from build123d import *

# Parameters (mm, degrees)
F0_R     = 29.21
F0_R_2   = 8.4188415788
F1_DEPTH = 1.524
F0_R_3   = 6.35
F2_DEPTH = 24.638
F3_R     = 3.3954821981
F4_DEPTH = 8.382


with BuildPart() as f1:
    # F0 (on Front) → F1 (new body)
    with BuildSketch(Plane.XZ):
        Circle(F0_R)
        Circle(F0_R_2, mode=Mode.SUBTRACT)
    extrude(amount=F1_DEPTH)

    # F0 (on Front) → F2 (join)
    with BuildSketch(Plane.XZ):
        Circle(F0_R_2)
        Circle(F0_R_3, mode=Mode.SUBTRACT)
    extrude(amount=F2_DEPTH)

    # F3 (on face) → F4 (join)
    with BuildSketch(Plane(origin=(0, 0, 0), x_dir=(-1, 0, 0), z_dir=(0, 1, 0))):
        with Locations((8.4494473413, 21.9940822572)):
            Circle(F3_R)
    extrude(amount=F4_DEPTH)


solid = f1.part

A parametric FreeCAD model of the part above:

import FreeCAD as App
import Part
import Sketcher
Q = App.Units.Quantity

doc = App.newDocument("Part")
body = doc.addObject("PartDesign::Body", "Body")

# Sketch on XZ plane
sketch1 = body.newObject("Sketcher::SketchObject", "Sketch")
sketch1.AttachmentSupport = (doc.getObject("XZ_Plane"), [""])
sketch1.MapMode = "FlatFace"
sketch1.addGeometry([
    Part.Circle(App.Vector(0, 0, 0), App.Vector(0, 0, 1), 29.21),
    Part.Circle(App.Vector(0, 0, 0), App.Vector(0, 0, 1), 8.418842),
], False)
sketch1.addConstraint([
    Sketcher.Constraint("Coincident", 0, 3, -1, 1),
    Sketcher.Constraint("Coincident", 1, 3, -1, 1),
    Sketcher.Constraint("Diameter", 0, Q("2.3 in")),
    Sketcher.Constraint("Diameter", 1, Q("16.837683 mm")),
])
pad1 = body.newObject("PartDesign::Pad", "Pad")
pad1.Profile = sketch1
pad1.Length = Q("0.06 in")

# Sketch on XZ plane
sketch2 = body.newObject("Sketcher::SketchObject", "Sketch001")
sketch2.AttachmentSupport = (doc.getObject("XZ_Plane"), [""])
sketch2.MapMode = "FlatFace"
sketch2.addGeometry([
    Part.Circle(App.Vector(0, 0, 0), App.Vector(0, 0, 1), 8.418842),
    Part.Circle(App.Vector(0, 0, 0), App.Vector(0, 0, 1), 6.35),
], False)
sketch2.addConstraint([
    Sketcher.Constraint("Coincident", 0, 3, -1, 1),
    Sketcher.Constraint("Coincident", 1, 3, -1, 1),
    Sketcher.Constraint("Diameter", 1, Q("0.5 in")),
    Sketcher.Constraint("Diameter", 0, Q("16.837683 mm")),
])
pad2 = body.newObject("PartDesign::Pad", "Pad001")
pad2.Profile = sketch2
pad2.Length = Q("0.97 in")

# Sketch on XZ plane
sketch3 = body.newObject("Sketcher::SketchObject", "Sketch002")
sketch3.AttachmentSupport = (doc.getObject("XZ_Plane"), [""])
sketch3.MapMode = "FlatFace"
sketch3.addGeometry(Part.Circle(App.Vector(-8.449447, 21.994082, 0), App.Vector(0, 0, 1), 3.395482), False)
sketch3.addConstraint([
    Sketcher.Constraint("Diameter", 0, Q("6.790964 mm")),
    Sketcher.Constraint("DistanceX", 0, 3, -1, 1, Q("8.449447 mm")),
    Sketcher.Constraint("DistanceY", -1, 1, 0, 3, Q("21.994082 mm")),
])
pad3 = body.newObject("PartDesign::Pad", "Pad002")
pad3.Profile = sketch3
pad3.Length = Q("0.33 in")
pad3.Reversed = True

doc.recompute()
